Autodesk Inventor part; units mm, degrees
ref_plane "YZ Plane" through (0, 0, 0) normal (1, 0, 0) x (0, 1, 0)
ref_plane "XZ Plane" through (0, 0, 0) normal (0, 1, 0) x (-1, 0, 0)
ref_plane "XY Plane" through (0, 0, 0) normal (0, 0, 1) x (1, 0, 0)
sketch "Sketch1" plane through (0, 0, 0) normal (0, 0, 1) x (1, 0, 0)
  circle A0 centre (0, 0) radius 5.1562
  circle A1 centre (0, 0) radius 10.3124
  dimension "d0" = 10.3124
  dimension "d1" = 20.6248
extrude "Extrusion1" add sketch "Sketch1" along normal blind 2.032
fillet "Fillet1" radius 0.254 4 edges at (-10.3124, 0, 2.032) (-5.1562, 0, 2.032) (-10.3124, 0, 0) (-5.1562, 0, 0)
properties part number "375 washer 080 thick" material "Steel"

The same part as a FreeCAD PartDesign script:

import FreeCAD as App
import Part
import Sketcher
from FreeCAD import Vector
Q = App.Units.Quantity


def edges_at(feature, points):
    """Names of the edges that pass closest to the given points."""
    edges = feature.Shape.Edges
    near = lambda p: min(range(len(edges)), key=lambda i: edges[i].distToShape(Part.Vertex(*p))[0])
    return sorted({f"Edge{near(p) + 1}" for p in points})

doc = App.newDocument("Part")
body = doc.addObject("PartDesign::Body", "Body")

# Sketch on XY plane
sketch1 = body.newObject("Sketcher::SketchObject", "Sketch")
sketch1.AttachmentSupport = (doc.getObject("XY_Plane"), [""])
sketch1.MapMode = "FlatFace"
sketch1.addGeometry([
    Part.Circle(Vector(0, 0, 0), Vector(0, 0, 1), 10),
    Part.Circle(Vector(0, 0, 0), Vector(0, 0, 1), 5),
], False)
sketch1.addConstraint([
    Sketcher.Constraint("Coincident", 0, 3, -1, 1),
    Sketcher.Constraint("Coincident", 1, 3, -1, 1),
    Sketcher.Constraint("Diameter", 0, Q("0.812 in")),
    Sketcher.Constraint("Diameter", 1, Q("0.406 in")),
])
pad1 = body.newObject("PartDesign::Pad", "Pad")
pad1.Profile = sketch1
pad1.Length = Q("0.08 in")
doc.recompute()

fillet = body.newObject("PartDesign::Fillet", "Fillet")
fillet.Base = (pad1, edges_at(pad1, [
    (-10.312, 0, 2.032),
    (-5.156, 0, 2.032),
    (-10.312, 0, 0),
    (-5.156, 0, 0),
]))
fillet.Radius = Q("0.01 in")

doc.recompute()
